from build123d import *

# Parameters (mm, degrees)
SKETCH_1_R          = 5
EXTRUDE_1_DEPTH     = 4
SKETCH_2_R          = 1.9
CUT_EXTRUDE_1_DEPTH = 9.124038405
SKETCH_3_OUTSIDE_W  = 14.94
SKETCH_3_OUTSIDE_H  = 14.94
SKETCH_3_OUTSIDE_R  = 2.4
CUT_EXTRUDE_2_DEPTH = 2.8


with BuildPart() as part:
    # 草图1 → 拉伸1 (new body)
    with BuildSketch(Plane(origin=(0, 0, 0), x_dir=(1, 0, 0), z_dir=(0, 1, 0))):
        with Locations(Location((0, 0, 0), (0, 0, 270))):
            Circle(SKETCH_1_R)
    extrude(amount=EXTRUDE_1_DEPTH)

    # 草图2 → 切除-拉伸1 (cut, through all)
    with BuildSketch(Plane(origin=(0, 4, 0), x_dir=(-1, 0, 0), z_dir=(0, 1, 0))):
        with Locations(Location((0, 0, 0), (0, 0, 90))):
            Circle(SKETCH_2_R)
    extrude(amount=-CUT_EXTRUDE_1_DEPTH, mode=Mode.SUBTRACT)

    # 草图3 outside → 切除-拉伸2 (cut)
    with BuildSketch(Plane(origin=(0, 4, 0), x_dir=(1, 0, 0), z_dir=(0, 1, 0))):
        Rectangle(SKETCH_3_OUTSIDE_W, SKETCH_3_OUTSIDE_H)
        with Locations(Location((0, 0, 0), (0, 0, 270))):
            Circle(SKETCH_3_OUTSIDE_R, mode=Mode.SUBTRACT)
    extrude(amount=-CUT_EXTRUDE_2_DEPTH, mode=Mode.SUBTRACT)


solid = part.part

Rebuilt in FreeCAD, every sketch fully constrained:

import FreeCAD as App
import Part
import Sketcher

V = App.Vector


def add_polygon(sketch, points):
    """Adds a closed chain of lines whose ends are joined by coincident constraints."""
    first, n = sketch.GeometryCount, len(points)
    for a, b in zip(points, points[1:] + points[:1]):
        sketch.addGeometry(Part.LineSegment(App.Vector(*a, 0), App.Vector(*b, 0)), False)
    for i in range(n):
        sketch.addConstraint(Sketcher.Constraint("Coincident", first + i, 2, first + (i + 1) % n, 1))

doc = App.newDocument("Part")
body = doc.addObject("PartDesign::Body", "Body")

# Sketch on XZ plane
sketch1 = body.newObject("Sketcher::SketchObject", "Sketch")
sketch1.AttachmentSupport = (doc.getObject("XZ_Plane"), [""])
sketch1.MapMode = "FlatFace"
sketch1.addGeometry(Part.Circle(V(0, 0, 0), V(0, 0, 1), 5), False)
sketch1.addConstraint([
    Sketcher.Constraint("Coincident", 0, 3, -1, 1),
    Sketcher.Constraint("Diameter", 0, 10.0),
])
pad1 = body.newObject("PartDesign::Pad", "Pad")
pad1.Profile = sketch1
pad1.Length = 4
pad1.Reversed = True

# Sketch on XZ plane
sketch2 = body.newObject("Sketcher::SketchObject", "Sketch001")
sketch2.AttachmentSupport = (doc.getObject("XZ_Plane"), [""])
sketch2.MapMode = "FlatFace"
sketch2.AttachmentOffset = App.Placement(V(0, 0, -4), App.Rotation())
sketch2.addGeometry(Part.Circle(V(0, 0, 0), V(0, 0, 1), 1.9), False)
sketch2.addConstraint([
    Sketcher.Constraint("Coincident", 0, 3, -1, 1),
    Sketcher.Constraint("Diameter", 0, 3.8),
])
pocket1 = body.newObject("PartDesign::Pocket", "Pocket")
pocket1.Profile = sketch2
pocket1.Type = "ThroughAll"
pocket1.Reversed = True

# Sketch on XZ plane
sketch3 = body.newObject("Sketcher::SketchObject", "Sketch002")
sketch3.AttachmentSupport = (doc.getObject("XZ_Plane"), [""])
sketch3.MapMode = "FlatFace"
sketch3.AttachmentOffset = App.Placement(V(0, 0, -4), App.Rotation())
add_polygon(sketch3, [(-7.47, -7.47), (-7.47, 7.47), (7.47, 7.47), (7.47, -7.47)])  # lines 0-3
sketch3.addGeometry(Part.Circle(V(0, 0, 0), V(0, 0, 1), 2.4), False)  # 4
sketch3.addConstraint([
    Sketcher.Constraint("Vertical", 0),
    Sketcher.Constraint("Horizontal", 1),
    Sketcher.Constraint("Vertical", 2),
    Sketcher.Constraint("Horizontal", 3),
    Sketcher.Constraint("Coincident", 4, 3, -1, 1),
    Sketcher.Constraint("Symmetric", 0, 2, 2, 2, -1, 1),
    Sketcher.Constraint("Equal", 3, 0),
    Sketcher.Constraint("Diameter", 4, 4.8),
    Sketcher.Constraint("DistanceX", 1, 1, 1, 2, 14.94),
])
pocket2 = body.newObject("PartDesign::Pocket", "Pocket001")
pocket2.Profile = sketch3
pocket2.Length = 2.8
pocket2.Reversed = True

doc.recompute()
